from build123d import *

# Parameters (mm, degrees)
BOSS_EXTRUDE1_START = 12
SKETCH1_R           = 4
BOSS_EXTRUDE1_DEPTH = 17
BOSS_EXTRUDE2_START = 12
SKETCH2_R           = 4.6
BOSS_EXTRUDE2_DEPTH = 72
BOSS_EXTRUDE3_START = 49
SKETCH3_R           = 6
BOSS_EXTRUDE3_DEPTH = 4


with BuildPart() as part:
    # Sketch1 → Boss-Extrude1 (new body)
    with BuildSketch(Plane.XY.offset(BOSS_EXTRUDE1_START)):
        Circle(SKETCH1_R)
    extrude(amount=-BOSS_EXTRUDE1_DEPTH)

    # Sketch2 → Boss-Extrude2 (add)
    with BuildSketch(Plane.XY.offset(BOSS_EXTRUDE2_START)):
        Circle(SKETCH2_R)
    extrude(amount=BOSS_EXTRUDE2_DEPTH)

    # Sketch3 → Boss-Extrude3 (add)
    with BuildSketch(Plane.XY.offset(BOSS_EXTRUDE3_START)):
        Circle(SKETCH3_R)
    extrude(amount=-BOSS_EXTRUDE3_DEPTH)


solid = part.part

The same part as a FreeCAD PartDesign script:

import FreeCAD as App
import Part
import Sketcher
from FreeCAD import Vector
Q = App.Units.Quantity

doc = App.newDocument("Part")
body = doc.addObject("PartDesign::Body", "Body")

# Sketch on XY plane
sketch1 = doc.addObject("Sketcher::SketchObject", "Sketch")
body.addObject(sketch1)
sketch1.AttachmentSupport = (doc.XY_Plane, [""])
sketch1.MapMode = "FlatFace"
sketch1.AttachmentOffset = App.Placement(Vector(0, 0, 12), App.Rotation())
sketch1.addGeometry(Part.Circle(Vector(0, 0, 0), Vector(0, 0, 1), 4), False)
sketch1.addConstraint([
    Sketcher.Constraint("Coincident", 0, 3, -1, 1),
    Sketcher.Constraint("Diameter", 0, Q("8 mm")),
])
pad1 = doc.addObject("PartDesign::Pad", "Pad")
body.addObject(pad1)
pad1.Profile = sketch1
pad1.Length = 17
pad1.Reversed = True

# Sketch on XY plane
sketch2 = doc.addObject("Sketcher::SketchObject", "Sketch001")
body.addObject(sketch2)
sketch2.AttachmentSupport = (doc.XY_Plane, [""])
sketch2.MapMode = "FlatFace"
sketch2.AttachmentOffset = App.Placement(Vector(0, 0, 12), App.Rotation())
sketch2.addGeometry(Part.Circle(Vector(0, 0, 0), Vector(0, 0, 1), 4.6), False)
sketch2.addConstraint([
    Sketcher.Constraint("Coincident", 0, 3, -1, 1),
    Sketcher.Constraint("Diameter", 0, Q("9.2 mm")),
])
pad2 = doc.addObject("PartDesign::Pad", "Pad001")
body.addObject(pad2)
pad2.Profile = sketch2
pad2.Length = 72

# Sketch on XY plane
sketch3 = doc.addObject("Sketcher::SketchObject", "Sketch002")
body.addObject(sketch3)
sketch3.AttachmentSupport = (doc.XY_Plane, [""])
sketch3.MapMode = "FlatFace"
sketch3.AttachmentOffset = App.Placement(Vector(0, 0, 49), App.Rotation())
sketch3.addGeometry(Part.Circle(Vector(0, 0, 0), Vector(0, 0, 1), 6), False)
sketch3.addConstraint([
    Sketcher.Constraint("Coincident", 0, 3, -1, 1),
    Sketcher.Constraint("Diameter", 0, Q("12 mm")),
])
pad3 = doc.addObject("PartDesign::Pad", "Pad002")
body.addObject(pad3)
pad3.Profile = sketch3
pad3.Length = 4
pad3.Reversed = True

doc.recompute()
